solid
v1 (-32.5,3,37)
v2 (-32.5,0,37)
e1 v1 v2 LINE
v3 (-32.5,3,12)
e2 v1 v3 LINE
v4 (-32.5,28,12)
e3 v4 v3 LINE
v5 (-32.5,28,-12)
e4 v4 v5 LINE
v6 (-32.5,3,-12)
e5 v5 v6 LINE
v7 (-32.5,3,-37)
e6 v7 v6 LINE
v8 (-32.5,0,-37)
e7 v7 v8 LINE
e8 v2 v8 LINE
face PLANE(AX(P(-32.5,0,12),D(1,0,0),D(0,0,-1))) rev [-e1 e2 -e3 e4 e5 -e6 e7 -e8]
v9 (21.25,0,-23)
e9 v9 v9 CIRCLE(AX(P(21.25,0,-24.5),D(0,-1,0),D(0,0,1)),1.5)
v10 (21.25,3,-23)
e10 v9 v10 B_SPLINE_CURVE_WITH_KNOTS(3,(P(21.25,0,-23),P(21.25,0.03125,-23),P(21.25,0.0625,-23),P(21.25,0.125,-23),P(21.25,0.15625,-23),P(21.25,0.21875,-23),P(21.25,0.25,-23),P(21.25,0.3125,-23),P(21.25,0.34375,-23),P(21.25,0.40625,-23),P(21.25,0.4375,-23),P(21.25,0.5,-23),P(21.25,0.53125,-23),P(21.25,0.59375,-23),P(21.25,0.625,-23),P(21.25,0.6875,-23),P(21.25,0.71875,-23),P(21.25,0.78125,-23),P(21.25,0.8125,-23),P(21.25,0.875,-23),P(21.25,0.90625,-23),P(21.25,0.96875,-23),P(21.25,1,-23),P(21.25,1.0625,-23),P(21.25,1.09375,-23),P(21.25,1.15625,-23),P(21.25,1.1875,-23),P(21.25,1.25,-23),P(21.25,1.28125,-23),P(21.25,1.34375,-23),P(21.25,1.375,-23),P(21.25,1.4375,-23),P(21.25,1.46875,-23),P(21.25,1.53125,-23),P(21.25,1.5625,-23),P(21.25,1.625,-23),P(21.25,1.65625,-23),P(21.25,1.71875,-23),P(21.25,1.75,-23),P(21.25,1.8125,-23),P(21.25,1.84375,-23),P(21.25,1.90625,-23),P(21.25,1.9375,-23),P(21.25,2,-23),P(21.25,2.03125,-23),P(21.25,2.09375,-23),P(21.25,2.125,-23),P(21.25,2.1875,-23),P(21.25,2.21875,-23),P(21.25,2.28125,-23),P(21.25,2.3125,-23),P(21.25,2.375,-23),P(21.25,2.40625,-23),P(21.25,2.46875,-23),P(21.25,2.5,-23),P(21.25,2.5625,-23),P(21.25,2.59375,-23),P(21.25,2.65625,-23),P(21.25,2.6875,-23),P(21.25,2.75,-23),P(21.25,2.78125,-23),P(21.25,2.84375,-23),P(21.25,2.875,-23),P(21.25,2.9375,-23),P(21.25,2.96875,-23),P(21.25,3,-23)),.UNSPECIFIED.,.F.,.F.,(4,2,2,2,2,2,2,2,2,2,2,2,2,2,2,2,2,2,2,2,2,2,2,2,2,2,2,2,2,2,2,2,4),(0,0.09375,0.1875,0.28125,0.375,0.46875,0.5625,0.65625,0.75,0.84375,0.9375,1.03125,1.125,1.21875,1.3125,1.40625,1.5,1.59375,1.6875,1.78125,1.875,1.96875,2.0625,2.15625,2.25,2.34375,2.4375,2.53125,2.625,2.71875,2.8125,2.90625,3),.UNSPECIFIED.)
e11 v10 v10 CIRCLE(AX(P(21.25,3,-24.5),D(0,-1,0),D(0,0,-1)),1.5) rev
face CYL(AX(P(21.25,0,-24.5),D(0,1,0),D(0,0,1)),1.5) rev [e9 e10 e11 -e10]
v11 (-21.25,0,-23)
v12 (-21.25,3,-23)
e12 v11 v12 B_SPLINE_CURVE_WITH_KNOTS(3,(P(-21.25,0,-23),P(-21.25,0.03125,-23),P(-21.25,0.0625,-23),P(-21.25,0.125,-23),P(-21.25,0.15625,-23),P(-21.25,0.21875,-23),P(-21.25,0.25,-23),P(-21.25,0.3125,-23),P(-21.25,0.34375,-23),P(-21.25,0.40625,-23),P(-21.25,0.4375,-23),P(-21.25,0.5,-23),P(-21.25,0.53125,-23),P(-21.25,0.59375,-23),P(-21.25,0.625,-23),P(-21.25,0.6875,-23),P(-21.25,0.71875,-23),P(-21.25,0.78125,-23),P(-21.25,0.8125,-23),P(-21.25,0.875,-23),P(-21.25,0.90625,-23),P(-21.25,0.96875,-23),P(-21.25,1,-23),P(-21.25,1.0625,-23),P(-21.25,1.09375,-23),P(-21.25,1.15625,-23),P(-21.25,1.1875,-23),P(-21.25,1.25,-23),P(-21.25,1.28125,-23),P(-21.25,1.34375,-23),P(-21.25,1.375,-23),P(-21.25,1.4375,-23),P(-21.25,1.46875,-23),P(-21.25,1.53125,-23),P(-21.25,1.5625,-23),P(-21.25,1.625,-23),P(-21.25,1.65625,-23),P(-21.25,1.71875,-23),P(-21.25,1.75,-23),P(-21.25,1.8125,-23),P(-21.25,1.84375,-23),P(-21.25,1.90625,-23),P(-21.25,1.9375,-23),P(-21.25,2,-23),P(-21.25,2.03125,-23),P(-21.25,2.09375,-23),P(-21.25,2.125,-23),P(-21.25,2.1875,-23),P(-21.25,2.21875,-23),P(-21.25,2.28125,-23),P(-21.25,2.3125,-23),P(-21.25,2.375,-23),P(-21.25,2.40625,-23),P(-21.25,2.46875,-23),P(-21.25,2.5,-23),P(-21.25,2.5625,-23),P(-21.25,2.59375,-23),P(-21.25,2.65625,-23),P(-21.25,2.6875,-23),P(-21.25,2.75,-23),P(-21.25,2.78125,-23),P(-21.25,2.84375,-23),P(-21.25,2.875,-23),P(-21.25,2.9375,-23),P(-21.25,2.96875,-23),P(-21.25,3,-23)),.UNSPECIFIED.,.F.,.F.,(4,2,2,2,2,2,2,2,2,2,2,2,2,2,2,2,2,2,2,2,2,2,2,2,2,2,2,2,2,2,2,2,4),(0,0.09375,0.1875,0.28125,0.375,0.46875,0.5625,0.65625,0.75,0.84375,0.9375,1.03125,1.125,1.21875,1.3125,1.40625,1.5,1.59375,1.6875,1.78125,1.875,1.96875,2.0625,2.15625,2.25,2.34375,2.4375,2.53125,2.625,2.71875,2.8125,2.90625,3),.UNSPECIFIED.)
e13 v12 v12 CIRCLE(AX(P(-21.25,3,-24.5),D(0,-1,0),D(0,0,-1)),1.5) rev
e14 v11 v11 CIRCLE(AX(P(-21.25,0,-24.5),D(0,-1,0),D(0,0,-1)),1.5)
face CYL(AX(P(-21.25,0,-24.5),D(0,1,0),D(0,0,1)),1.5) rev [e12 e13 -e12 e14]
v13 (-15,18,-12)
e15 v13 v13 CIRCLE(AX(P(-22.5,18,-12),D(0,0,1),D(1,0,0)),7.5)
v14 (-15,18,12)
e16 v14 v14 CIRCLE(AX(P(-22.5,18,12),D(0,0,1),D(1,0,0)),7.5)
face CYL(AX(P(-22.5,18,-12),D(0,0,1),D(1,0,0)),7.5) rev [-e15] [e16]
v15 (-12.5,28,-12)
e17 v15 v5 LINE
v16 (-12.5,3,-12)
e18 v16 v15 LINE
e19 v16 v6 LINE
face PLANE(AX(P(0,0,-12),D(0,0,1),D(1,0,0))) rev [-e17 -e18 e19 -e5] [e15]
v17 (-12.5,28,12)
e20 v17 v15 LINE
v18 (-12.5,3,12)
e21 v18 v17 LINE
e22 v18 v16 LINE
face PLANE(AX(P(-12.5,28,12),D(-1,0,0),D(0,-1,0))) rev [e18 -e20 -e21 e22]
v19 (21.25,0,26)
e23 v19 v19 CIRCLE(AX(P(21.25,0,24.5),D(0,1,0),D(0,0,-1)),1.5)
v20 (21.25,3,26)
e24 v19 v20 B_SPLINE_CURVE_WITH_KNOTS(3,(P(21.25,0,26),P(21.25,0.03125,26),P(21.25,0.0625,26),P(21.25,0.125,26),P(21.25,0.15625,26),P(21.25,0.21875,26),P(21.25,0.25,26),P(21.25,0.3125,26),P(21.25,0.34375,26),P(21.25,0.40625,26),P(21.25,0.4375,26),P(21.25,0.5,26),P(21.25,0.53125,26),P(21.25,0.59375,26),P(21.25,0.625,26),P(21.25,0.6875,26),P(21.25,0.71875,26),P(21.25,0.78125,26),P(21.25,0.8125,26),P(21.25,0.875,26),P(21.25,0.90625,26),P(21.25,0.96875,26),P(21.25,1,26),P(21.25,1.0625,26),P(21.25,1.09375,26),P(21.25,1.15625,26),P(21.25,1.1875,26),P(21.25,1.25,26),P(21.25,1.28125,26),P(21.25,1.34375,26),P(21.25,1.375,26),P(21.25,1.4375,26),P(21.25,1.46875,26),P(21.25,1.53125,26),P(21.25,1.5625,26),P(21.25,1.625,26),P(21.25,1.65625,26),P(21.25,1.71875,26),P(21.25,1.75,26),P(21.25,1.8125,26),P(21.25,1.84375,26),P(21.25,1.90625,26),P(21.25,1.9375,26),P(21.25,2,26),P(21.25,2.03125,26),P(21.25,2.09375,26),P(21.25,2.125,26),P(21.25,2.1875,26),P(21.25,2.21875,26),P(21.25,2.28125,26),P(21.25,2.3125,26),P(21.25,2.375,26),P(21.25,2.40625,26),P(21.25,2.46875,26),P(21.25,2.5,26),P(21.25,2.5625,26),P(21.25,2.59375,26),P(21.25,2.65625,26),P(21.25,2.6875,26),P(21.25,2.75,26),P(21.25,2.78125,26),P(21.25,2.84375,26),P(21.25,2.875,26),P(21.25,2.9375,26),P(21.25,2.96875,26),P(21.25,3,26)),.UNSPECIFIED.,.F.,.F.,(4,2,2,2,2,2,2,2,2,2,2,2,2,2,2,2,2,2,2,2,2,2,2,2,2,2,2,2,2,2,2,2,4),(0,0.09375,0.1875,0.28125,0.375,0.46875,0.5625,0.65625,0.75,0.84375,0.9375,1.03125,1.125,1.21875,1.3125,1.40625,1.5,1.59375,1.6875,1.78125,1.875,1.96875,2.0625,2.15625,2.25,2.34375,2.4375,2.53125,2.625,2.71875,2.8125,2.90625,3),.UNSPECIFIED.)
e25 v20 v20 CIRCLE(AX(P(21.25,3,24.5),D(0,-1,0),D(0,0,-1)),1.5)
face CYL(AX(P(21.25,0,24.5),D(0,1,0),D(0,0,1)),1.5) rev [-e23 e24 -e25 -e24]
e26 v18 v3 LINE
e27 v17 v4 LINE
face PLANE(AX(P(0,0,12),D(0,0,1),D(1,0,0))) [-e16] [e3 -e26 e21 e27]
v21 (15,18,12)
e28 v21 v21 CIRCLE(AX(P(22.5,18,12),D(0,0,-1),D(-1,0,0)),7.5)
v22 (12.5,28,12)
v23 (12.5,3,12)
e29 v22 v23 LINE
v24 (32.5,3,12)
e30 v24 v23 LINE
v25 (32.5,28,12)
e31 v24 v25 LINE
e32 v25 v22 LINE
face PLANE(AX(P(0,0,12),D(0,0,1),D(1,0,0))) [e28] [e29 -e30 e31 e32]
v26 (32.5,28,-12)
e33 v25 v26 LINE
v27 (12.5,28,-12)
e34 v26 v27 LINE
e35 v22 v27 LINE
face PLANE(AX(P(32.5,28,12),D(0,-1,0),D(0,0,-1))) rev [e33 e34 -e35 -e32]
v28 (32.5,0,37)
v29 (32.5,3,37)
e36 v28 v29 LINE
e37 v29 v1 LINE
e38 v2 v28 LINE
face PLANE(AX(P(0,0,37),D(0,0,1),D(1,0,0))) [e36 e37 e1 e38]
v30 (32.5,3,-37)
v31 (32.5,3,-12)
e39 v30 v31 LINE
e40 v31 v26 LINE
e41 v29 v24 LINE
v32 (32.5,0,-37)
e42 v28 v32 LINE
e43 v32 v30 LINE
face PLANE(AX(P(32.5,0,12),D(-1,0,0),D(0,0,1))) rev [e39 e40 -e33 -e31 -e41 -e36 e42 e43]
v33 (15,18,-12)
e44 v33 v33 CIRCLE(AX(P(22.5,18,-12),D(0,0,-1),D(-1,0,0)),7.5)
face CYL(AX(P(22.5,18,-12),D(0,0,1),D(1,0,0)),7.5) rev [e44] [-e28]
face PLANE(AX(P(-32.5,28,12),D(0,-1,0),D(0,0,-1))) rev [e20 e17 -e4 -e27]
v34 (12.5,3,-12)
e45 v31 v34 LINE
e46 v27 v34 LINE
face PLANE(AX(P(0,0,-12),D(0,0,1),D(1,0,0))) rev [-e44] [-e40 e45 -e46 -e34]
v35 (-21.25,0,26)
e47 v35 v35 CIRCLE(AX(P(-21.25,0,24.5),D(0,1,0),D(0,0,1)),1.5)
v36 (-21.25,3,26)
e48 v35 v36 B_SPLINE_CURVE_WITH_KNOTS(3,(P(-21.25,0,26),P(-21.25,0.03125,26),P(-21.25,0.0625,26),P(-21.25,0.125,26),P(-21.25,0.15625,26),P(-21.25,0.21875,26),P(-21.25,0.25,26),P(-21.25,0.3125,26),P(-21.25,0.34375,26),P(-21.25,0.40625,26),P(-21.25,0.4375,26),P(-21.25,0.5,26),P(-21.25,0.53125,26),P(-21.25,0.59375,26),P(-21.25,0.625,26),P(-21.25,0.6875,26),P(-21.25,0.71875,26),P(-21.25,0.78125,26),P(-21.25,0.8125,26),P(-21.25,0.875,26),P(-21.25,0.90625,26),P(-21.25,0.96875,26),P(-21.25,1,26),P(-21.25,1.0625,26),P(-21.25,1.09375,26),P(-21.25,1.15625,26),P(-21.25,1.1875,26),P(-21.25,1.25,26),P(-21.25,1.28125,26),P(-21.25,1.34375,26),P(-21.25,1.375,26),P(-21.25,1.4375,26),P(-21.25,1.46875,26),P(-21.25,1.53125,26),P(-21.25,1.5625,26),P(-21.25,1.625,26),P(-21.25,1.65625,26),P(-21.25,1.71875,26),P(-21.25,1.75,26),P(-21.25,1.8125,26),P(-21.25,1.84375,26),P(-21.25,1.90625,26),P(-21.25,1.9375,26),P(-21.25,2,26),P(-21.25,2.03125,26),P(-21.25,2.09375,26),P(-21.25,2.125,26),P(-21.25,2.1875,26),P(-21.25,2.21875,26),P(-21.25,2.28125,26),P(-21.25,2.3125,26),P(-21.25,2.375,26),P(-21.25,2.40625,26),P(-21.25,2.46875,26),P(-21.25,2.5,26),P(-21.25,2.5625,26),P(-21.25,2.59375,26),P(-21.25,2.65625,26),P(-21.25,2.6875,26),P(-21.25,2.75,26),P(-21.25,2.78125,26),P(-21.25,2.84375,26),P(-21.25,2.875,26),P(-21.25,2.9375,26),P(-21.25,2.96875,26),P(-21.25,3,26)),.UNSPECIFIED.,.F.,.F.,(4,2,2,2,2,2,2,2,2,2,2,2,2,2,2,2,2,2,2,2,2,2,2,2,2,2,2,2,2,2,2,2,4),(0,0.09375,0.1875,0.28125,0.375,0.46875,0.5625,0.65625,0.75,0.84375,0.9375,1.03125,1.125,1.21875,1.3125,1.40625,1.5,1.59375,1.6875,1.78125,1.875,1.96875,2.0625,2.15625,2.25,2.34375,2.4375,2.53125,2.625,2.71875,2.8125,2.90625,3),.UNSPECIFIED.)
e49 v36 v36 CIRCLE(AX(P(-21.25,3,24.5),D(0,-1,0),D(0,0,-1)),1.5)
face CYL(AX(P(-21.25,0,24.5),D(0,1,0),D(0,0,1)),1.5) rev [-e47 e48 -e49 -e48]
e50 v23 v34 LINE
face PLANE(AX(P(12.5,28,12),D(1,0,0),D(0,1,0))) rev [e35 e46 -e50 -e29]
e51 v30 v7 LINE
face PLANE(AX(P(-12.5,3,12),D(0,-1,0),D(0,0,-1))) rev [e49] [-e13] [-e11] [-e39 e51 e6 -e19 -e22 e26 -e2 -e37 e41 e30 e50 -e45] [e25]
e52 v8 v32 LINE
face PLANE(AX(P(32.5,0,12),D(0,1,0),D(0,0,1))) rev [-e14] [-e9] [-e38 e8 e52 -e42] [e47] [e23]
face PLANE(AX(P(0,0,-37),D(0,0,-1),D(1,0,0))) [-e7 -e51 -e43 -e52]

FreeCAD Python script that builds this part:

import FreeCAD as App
import Part
import Sketcher
from FreeCAD import Vector
Q = App.Units.Quantity


def add_polygon(sketch, points):
    """Adds a closed chain of lines whose ends are joined by coincident constraints."""
    first, n = sketch.GeometryCount, len(points)
    for a, b in zip(points, points[1:] + points[:1]):
        sketch.addGeometry(Part.LineSegment(App.Vector(*a, 0), App.Vector(*b, 0)), False)
    for i in range(n):
        sketch.addConstraint(Sketcher.Constraint("Coincident", first + i, 2, first + (i + 1) % n, 1))

doc = App.newDocument("Part")
body = doc.addObject("PartDesign::Body", "Body")

sketch1 = body.newObject("Sketcher::SketchObject", "Sketch")
sketch1.AttachmentSupport = (doc.getObject("XY_Plane"), [""])
sketch1.MapMode = "FlatFace"
add_polygon(sketch1, [(-32.5, 0), (32.5, 0), (32.5, 28), (12.5, 28), (12.5, 3), (-12.5, 3), (-12.5, 28), (-32.5, 28)])
sketch1.addConstraint(Sketcher.Constraint("Horizontal", 0))
sketch1.addConstraint(Sketcher.Constraint("Vertical", 1))
sketch1.addConstraint(Sketcher.Constraint("Horizontal", 2))
sketch1.addConstraint(Sketcher.Constraint("Vertical", 3))
sketch1.addConstraint(Sketcher.Constraint("Horizontal", 4))
sketch1.addConstraint(Sketcher.Constraint("Vertical", 5))
sketch1.addConstraint(Sketcher.Constraint("Horizontal", 6))
sketch1.addConstraint(Sketcher.Constraint("Vertical", 7))
sketch1.addConstraint(Sketcher.Constraint("Symmetric", 0, 2, 7, 2, -1, 1))
sketch1.addConstraint(Sketcher.Constraint("Symmetric", 2, 2, 5, 2, -2))
sketch1.addConstraint(Sketcher.Constraint("Equal", 4, 3))
sketch1.addConstraint(Sketcher.Constraint("DistanceX", 0, 1, 0, 2, Q("65 mm")))
sketch1.addConstraint(Sketcher.Constraint("DistanceX", 2, 2, 2, 1, Q("20 mm")))
sketch1.addConstraint(Sketcher.Constraint("DistanceY", 1, 1, 1, 2, Q("28 mm")))
pad1 = body.newObject("PartDesign::Pad", "Pad")
pad1.Profile = sketch1
pad1.Length = 24
pad1.Midplane = True

sketch2 = body.newObject("Sketcher::SketchObject", "Sketch001")
sketch2.AttachmentSupport = (doc.getObject("XY_Plane"), [""])
sketch2.MapMode = "FlatFace"
sketch2.AttachmentOffset = App.Placement(Vector(0, 0, 12), App.Rotation())
sketch2.addGeometry(Part.Circle(Vector(-22.5, 18, 0), Vector(0, 0, 1), 7.5), False)
sketch2.addConstraint(Sketcher.Constraint("Diameter", 0, Q("15 mm")))
sketch2.addConstraint(Sketcher.Constraint("DistanceY", -1, 1, 0, 3, Q("18 mm")))
sketch2.addConstraint(Sketcher.Constraint("DistanceX", 0, 3, -1, 1, Q("22.5 mm")))
pocket1 = body.newObject("PartDesign::Pocket", "Pocket")
pocket1.Profile = sketch2
pocket1.Type = "ThroughAll"
doc.recompute()

mirrored = body.newObject("PartDesign::Mirrored", "Mirrored")
mirrored.Originals = [pocket1]
mirrored.MirrorPlane = (doc.getObject("YZ_Plane"), [""])
body.Tip = mirrored

sketch3 = body.newObject("Sketcher::SketchObject", "Sketch002")
sketch3.AttachmentSupport = (doc.getObject("XY_Plane"), [""])
sketch3.MapMode = "FlatFace"
sketch3.AttachmentOffset = App.Placement(Vector(0, 0, 12), App.Rotation())
add_polygon(sketch3, [(-32.5, 3), (-32.5, 0), (32.5, 0), (32.5, 3)])
sketch3.addConstraint(Sketcher.Constraint("Vertical", 0))
sketch3.addConstraint(Sketcher.Constraint("Horizontal", 1))
sketch3.addConstraint(Sketcher.Constraint("Vertical", 2))
sketch3.addConstraint(Sketcher.Constraint("Horizontal", 3))
sketch3.addConstraint(Sketcher.Constraint("Symmetric", 0, 2, 1, 2, -1, 1))
sketch3.addConstraint(Sketcher.Constraint("DistanceX", 1, 1, 1, 2, Q("65 mm")))
sketch3.addConstraint(Sketcher.Constraint("DistanceY", 0, 2, 0, 1, Q("3 mm")))
pad2 = body.newObject("PartDesign::Pad", "Pad001")
pad2.Profile = sketch3
pad2.Length = 25

sketch4 = body.newObject("Sketcher::SketchObject", "Sketch003")
sketch4.AttachmentSupport = (doc.getObject("XZ_Plane"), [""])
sketch4.MapMode = "FlatFace"
sketch4.AttachmentOffset = App.Placement(Vector(0, 0, -3), App.Rotation())
sketch4.addGeometry(Part.Circle(Vector(-21.25, 24.5, 0), Vector(0, 0, 1), 1.5), False)
sketch4.addGeometry(Part.Circle(Vector(21.25, 24.5, 0), Vector(0, 0, 1), 1.5), False)
sketch4.addConstraint(Sketcher.Constraint("Equal", 0, 1))
sketch4.addConstraint(Sketcher.Constraint("Symmetric", 0, 3, 1, 3, -2))
sketch4.addConstraint(Sketcher.Constraint("Diameter", 0, Q("3 mm")))
sketch4.addConstraint(Sketcher.Constraint("DistanceY", -1, 1, 0, 3, Q("24.5 mm")))
sketch4.addConstraint(Sketcher.Constraint("DistanceX", 0, 3, 1, 3, Q("42.5 mm")))
pocket2 = body.newObject("PartDesign::Pocket", "Pocket001")
pocket2.Profile = sketch4
pocket2.Length = 112.458137
pocket2.Midplane = True
doc.recompute()

mirrored2 = body.newObject("PartDesign::Mirrored", "Mirrored001")
mirrored2.Originals = [pad2, pocket2]
mirrored2.MirrorPlane = (doc.getObject("XY_Plane"), [""])
body.Tip = mirrored2

doc.recompute()
